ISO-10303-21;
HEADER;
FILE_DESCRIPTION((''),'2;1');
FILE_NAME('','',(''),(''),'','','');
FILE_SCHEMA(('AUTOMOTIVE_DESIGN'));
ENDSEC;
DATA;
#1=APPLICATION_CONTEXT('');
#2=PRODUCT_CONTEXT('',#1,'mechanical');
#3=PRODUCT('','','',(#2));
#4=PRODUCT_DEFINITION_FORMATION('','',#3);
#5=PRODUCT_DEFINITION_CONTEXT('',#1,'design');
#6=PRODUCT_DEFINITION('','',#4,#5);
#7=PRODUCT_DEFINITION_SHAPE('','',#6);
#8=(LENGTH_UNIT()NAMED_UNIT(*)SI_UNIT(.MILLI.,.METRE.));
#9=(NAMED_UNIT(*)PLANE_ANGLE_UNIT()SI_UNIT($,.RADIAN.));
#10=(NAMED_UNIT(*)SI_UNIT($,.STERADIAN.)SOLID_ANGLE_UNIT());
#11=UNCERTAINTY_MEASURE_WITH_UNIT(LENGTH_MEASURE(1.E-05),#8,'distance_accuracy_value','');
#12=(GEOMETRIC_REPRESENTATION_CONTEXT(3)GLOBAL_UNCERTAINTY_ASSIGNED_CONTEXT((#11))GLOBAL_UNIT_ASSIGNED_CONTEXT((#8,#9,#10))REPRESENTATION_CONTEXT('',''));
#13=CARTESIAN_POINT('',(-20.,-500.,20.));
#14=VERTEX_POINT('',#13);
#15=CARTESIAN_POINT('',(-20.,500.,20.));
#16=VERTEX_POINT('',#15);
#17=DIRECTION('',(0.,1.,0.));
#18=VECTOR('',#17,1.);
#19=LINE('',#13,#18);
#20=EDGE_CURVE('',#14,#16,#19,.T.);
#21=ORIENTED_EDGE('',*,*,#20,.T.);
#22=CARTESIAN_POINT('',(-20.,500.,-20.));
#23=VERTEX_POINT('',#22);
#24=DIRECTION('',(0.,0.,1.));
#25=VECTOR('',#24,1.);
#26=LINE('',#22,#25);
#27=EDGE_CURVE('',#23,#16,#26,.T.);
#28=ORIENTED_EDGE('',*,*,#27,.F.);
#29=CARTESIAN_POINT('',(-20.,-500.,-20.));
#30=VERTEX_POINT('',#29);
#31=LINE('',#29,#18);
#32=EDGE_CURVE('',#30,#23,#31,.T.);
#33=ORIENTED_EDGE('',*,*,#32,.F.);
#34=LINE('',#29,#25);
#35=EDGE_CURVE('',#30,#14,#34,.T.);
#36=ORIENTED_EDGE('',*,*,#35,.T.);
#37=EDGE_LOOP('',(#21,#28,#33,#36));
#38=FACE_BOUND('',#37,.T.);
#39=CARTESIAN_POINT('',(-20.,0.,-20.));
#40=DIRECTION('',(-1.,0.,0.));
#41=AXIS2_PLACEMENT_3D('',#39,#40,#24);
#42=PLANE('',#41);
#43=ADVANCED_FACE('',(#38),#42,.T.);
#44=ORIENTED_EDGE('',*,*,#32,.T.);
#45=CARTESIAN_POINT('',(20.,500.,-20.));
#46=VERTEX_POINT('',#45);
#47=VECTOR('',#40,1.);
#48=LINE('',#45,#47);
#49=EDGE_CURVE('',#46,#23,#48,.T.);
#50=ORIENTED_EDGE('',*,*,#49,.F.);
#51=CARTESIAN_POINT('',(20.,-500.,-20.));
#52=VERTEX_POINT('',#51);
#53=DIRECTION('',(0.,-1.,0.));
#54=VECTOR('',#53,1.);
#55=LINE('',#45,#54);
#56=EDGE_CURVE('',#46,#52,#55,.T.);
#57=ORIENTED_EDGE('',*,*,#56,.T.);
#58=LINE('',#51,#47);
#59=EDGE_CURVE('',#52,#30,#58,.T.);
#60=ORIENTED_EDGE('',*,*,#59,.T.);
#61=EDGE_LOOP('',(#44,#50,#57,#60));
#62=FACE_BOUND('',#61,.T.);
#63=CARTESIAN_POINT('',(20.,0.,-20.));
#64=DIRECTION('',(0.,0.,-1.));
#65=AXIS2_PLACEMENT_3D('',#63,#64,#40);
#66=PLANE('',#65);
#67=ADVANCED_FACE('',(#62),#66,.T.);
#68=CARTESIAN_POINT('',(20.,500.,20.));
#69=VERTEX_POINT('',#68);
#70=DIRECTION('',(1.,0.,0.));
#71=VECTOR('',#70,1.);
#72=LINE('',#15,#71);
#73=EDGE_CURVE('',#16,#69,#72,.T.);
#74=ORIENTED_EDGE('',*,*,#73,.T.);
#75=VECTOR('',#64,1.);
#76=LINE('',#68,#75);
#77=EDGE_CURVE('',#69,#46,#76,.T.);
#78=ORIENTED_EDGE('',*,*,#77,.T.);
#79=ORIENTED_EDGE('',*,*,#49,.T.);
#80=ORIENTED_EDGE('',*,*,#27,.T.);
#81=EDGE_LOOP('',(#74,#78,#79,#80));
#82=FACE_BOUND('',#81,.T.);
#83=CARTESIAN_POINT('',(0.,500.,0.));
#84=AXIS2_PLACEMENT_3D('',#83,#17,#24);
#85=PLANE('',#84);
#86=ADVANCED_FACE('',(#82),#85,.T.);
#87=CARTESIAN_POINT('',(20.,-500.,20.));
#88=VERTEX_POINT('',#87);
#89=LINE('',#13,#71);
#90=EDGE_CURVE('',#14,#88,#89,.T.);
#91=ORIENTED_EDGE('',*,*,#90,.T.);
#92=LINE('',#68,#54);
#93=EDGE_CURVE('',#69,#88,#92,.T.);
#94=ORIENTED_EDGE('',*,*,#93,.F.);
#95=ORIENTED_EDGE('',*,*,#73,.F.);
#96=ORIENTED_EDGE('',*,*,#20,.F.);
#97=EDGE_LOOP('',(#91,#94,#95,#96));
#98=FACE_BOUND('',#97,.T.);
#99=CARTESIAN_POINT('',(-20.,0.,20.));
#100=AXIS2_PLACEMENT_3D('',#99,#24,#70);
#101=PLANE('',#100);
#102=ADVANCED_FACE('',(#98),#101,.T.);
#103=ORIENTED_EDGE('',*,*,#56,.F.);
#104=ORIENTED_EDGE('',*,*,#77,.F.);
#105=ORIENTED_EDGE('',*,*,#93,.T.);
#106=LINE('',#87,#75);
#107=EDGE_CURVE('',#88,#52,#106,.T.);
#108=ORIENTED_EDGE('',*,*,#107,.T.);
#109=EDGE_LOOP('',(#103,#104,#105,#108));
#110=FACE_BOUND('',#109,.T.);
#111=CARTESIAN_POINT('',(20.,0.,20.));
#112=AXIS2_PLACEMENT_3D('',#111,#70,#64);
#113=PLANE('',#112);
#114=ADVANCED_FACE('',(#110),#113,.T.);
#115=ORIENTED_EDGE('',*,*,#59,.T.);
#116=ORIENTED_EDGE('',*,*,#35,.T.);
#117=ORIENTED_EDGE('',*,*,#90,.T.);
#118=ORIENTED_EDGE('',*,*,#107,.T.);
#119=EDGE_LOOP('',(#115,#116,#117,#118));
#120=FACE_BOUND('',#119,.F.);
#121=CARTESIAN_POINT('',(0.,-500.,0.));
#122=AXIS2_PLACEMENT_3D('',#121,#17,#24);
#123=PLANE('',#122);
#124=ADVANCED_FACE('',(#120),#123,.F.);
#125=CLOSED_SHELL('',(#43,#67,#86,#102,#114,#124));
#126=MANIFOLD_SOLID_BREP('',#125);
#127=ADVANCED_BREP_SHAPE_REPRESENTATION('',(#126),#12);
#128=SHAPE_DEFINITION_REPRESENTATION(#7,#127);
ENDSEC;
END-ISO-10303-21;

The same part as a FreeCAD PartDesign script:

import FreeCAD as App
import Part
import Sketcher

V = App.Vector

doc = App.newDocument("Part")
body = doc.addObject("PartDesign::Body", "Body")

# Sketch on XZ plane
sketch1 = body.newObject("Sketcher::SketchObject", "Sketch")
sketch1.AttachmentSupport = (doc.getObject("XZ_Plane"), [""])
sketch1.MapMode = "FlatFace"
sketch1.addGeometry([
    Part.LineSegment(V(-20, -20, 0), V(20, -20, 0)),
    Part.LineSegment(V(20, -20, 0), V(20, 20, 0)),
    Part.LineSegment(V(20, 20, 0), V(-20, 20, 0)),
    Part.LineSegment(V(-20, 20, 0), V(-20, -20, 0)),
], False)
sketch1.addConstraint([
    Sketcher.Constraint("Coincident", 0, 2, 1, 1),
    Sketcher.Constraint("Coincident", 1, 2, 2, 1),
    Sketcher.Constraint("Coincident", 2, 2, 3, 1),
    Sketcher.Constraint("Coincident", 3, 2, 0, 1),
    Sketcher.Constraint("Horizontal", 0),
    Sketcher.Constraint("Vertical", 1),
    Sketcher.Constraint("Horizontal", 2),
    Sketcher.Constraint("Vertical", 3),
    Sketcher.Constraint("Symmetric", 0, 2, 2, 2, -1, 1),
    Sketcher.Constraint("Equal", 2, 1),
    Sketcher.Constraint("DistanceX", -1, 1, 0, 2, 20.0),
])
pad1 = body.newObject("PartDesign::Pad", "Pad")
pad1.Profile = sketch1
pad1.Length = 1000
pad1.Midplane = True

doc.recompute()
